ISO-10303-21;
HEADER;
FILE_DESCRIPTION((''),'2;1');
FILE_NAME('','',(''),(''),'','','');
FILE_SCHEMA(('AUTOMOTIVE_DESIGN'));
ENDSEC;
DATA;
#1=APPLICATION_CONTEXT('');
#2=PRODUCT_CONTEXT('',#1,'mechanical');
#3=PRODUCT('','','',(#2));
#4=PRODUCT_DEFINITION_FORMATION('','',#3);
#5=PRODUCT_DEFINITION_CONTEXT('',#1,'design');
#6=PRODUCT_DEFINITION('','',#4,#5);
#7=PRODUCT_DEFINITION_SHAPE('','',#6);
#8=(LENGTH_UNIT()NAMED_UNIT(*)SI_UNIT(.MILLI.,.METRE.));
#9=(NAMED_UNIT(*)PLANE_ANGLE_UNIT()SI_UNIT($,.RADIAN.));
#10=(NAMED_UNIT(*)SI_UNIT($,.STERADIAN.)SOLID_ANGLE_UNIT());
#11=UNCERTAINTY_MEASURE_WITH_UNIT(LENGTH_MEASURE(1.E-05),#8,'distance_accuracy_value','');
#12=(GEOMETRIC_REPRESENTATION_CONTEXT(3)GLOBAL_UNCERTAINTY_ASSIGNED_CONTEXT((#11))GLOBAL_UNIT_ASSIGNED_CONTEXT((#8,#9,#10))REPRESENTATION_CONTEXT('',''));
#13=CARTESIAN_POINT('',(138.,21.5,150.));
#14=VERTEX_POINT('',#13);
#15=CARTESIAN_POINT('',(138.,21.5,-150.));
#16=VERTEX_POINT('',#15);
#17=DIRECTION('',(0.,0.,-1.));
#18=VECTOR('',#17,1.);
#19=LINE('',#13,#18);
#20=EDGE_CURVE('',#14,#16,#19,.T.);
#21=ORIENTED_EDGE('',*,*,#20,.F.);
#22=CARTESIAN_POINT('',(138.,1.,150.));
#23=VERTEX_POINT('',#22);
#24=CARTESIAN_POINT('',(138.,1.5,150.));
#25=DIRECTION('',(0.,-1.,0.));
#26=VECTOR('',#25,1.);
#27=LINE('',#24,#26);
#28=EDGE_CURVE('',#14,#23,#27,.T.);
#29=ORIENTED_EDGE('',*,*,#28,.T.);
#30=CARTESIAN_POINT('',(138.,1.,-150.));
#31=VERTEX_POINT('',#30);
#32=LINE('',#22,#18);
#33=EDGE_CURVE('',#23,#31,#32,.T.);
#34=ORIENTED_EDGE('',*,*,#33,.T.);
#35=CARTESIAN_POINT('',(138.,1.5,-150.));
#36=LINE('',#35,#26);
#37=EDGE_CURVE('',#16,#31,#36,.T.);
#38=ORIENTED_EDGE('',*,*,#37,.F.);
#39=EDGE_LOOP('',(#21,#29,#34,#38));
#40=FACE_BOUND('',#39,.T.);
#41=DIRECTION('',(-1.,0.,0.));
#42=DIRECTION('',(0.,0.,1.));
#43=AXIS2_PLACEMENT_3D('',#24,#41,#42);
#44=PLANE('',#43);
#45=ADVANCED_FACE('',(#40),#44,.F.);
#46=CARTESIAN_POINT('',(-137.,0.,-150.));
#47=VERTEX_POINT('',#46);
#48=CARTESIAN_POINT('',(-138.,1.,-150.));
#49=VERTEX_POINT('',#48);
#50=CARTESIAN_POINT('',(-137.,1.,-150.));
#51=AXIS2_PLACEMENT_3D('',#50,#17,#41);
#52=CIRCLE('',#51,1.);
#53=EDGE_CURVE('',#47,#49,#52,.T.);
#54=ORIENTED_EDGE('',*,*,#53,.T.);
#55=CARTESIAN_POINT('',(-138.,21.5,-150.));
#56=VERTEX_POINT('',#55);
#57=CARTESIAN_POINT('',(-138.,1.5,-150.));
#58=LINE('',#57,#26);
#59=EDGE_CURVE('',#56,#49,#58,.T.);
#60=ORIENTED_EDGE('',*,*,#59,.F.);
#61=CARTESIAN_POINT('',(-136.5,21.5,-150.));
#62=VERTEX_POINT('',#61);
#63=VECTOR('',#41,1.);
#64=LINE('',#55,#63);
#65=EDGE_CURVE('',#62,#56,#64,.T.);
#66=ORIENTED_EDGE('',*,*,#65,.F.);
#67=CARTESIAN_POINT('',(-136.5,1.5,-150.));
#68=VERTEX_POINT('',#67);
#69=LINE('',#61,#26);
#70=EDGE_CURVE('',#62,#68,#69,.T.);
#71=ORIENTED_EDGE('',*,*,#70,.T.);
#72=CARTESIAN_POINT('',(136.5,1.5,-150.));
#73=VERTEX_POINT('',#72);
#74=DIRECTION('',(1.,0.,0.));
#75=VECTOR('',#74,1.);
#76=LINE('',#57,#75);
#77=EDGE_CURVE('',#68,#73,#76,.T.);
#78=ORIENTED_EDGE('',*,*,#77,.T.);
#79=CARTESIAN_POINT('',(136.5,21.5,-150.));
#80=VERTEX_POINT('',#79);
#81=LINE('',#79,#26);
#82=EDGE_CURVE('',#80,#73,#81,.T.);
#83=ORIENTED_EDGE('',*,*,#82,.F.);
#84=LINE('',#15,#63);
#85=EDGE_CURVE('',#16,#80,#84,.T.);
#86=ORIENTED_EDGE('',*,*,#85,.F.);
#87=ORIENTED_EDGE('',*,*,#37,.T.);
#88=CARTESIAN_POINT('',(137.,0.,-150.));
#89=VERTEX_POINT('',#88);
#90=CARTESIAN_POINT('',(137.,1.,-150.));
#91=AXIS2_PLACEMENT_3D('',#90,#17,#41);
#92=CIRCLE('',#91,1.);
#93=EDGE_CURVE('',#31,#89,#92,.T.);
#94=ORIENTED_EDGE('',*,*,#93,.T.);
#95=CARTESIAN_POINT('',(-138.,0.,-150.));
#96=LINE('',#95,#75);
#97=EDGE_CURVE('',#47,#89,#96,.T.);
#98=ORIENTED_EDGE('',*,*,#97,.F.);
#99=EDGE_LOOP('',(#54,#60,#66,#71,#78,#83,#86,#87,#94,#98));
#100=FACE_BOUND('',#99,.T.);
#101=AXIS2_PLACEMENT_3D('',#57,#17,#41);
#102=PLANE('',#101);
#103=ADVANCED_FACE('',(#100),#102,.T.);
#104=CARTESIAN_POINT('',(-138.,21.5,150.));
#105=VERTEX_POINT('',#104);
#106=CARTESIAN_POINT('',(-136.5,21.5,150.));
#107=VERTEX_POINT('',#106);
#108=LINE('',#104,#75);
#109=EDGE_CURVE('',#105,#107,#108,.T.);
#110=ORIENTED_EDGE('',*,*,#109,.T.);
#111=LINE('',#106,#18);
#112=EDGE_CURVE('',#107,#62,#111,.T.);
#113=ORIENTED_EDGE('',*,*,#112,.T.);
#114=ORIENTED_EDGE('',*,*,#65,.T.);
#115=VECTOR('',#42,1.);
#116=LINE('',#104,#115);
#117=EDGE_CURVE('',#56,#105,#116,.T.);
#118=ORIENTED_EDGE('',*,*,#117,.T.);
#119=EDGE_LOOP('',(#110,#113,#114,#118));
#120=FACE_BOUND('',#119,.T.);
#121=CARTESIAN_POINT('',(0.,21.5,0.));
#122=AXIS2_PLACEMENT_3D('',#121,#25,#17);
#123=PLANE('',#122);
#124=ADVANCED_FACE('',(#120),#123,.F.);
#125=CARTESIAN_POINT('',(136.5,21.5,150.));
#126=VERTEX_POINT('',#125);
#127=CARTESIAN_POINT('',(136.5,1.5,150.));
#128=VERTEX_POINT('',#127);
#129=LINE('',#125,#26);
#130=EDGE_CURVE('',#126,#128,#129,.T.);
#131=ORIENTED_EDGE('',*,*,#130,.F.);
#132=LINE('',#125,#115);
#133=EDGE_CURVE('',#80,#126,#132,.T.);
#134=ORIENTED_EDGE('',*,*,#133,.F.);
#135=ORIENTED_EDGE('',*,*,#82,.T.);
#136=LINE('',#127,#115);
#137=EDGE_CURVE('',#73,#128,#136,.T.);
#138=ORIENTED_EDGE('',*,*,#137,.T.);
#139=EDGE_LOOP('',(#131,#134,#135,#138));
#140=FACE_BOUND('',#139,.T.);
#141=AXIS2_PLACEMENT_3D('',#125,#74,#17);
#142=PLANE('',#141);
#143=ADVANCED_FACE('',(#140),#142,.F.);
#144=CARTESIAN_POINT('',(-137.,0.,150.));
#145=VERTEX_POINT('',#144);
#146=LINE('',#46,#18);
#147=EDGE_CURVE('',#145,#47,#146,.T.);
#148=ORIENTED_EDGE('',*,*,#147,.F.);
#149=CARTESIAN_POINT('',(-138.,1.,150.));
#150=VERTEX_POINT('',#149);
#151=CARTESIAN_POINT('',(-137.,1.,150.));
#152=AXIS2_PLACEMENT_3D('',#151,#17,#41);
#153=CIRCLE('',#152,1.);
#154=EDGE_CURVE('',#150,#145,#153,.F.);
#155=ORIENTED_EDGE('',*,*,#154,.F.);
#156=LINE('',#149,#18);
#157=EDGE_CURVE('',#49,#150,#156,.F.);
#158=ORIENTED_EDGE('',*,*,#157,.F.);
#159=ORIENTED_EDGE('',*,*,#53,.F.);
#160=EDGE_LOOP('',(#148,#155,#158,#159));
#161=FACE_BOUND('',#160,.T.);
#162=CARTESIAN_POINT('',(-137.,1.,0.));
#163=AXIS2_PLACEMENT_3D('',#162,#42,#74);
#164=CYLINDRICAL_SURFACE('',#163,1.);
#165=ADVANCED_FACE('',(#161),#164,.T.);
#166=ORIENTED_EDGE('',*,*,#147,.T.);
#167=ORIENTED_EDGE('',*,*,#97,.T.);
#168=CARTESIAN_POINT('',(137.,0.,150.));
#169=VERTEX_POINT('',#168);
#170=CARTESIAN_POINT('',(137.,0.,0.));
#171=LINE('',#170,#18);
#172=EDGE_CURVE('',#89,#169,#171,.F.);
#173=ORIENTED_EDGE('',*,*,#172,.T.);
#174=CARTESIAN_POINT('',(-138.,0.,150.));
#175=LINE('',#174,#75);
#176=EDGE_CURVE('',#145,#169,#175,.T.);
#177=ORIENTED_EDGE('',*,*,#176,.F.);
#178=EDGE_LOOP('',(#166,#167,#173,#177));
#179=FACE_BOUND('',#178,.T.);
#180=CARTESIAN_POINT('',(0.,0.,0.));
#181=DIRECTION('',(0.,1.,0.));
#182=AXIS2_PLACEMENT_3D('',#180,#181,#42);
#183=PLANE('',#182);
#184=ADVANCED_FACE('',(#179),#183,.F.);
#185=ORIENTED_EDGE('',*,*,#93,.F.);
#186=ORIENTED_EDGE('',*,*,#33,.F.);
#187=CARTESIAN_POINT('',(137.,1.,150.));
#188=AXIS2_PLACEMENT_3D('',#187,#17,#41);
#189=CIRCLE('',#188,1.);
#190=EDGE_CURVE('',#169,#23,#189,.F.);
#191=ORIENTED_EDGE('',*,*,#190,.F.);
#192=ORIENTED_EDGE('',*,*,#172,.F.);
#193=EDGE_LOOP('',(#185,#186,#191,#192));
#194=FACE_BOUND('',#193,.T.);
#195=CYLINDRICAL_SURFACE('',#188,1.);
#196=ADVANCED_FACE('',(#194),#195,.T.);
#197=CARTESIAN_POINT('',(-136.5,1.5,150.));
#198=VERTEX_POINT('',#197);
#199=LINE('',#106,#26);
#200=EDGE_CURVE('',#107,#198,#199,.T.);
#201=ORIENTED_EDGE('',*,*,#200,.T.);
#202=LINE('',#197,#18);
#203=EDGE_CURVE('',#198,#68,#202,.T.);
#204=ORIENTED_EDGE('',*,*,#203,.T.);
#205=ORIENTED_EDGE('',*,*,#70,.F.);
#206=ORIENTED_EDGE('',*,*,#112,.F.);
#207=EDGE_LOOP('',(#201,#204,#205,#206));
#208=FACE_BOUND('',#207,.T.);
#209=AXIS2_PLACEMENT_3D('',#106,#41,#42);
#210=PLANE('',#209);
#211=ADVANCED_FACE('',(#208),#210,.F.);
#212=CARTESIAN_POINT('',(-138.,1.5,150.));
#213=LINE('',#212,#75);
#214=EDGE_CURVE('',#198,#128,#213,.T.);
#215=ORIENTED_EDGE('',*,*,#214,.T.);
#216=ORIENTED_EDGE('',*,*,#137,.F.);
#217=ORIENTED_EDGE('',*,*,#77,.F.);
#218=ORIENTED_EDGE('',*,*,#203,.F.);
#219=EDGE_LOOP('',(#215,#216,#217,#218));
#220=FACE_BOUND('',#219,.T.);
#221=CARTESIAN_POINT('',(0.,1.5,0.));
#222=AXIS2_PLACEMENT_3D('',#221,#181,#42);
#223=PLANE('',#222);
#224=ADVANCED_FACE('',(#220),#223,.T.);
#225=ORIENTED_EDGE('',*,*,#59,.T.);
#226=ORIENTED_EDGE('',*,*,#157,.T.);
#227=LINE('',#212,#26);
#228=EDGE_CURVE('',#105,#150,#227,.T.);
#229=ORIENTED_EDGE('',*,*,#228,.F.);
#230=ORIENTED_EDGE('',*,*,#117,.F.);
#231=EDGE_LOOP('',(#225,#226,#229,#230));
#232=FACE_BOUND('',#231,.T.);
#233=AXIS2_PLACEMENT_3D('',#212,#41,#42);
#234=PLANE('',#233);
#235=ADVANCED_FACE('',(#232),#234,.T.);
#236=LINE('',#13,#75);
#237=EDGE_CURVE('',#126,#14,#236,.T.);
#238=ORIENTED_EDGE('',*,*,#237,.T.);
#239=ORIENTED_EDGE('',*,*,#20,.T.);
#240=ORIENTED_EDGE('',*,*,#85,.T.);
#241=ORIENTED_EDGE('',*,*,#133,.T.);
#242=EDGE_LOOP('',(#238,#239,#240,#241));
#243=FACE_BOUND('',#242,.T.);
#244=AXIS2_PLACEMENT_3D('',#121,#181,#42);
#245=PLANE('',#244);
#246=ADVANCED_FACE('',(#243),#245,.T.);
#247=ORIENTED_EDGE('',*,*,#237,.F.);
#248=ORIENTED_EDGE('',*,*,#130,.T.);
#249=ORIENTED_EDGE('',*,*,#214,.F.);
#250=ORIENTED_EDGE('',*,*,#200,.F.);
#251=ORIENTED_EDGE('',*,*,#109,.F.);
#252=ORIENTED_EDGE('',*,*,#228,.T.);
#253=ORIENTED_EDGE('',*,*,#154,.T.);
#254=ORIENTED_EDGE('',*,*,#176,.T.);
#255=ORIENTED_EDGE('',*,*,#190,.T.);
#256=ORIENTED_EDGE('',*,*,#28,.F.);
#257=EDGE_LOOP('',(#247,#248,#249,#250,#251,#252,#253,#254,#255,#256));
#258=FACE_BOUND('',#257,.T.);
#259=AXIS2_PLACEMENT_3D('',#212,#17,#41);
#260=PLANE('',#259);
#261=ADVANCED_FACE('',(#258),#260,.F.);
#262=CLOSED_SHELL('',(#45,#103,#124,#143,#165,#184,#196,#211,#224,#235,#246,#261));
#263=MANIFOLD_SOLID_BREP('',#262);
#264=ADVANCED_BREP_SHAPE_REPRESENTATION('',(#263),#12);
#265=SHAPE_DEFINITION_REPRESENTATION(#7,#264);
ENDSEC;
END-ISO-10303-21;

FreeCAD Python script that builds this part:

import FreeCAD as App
import Part
import Sketcher
from FreeCAD import Vector


def edges_at(feature, points):
    """Names of the edges that pass closest to the given points."""
    edges = feature.Shape.Edges
    near = lambda p: min(range(len(edges)), key=lambda i: edges[i].distToShape(Part.Vertex(*p))[0])
    return sorted({f"Edge{near(p) + 1}" for p in points})


def add_polygon(sketch, points):
    """Adds a closed chain of lines whose ends are joined by coincident constraints."""
    first, n = sketch.GeometryCount, len(points)
    for a, b in zip(points, points[1:] + points[:1]):
        sketch.addGeometry(Part.LineSegment(App.Vector(*a, 0), App.Vector(*b, 0)), False)
    for i in range(n):
        sketch.addConstraint(Sketcher.Constraint("Coincident", first + i, 2, first + (i + 1) % n, 1))

doc = App.newDocument("Part")
body = doc.addObject("PartDesign::Body", "Body")

sketch1 = doc.addObject("Sketcher::SketchObject", "Sketch")
body.addObject(sketch1)
sketch1.AttachmentSupport = (doc.XZ_Plane, [""])
sketch1.MapMode = "FlatFace"
add_polygon(sketch1, [(-138, -150), (-138, 150), (138, 150), (138, -150)])
sketch1.addConstraint(Sketcher.Constraint("Vertical", 0))
sketch1.addConstraint(Sketcher.Constraint("Horizontal", 1))
sketch1.addConstraint(Sketcher.Constraint("Vertical", 2))
sketch1.addConstraint(Sketcher.Constraint("Horizontal", 3))
sketch1.addConstraint(Sketcher.Constraint("Symmetric", 0, 2, 2, 2, -1, 1))
sketch1.addConstraint(Sketcher.Constraint("DistanceX", 1, 1, 1, 2, 276.0))
sketch1.addConstraint(Sketcher.Constraint("DistanceY", 0, 1, 0, 2, 300.0))
pad1 = doc.addObject("PartDesign::Pad", "Pad")
body.addObject(pad1)
pad1.Profile = sketch1
pad1.Length = 1.5
pad1.Reversed = True

sketch2 = doc.addObject("Sketcher::SketchObject", "Sketch001")
body.addObject(sketch2)
sketch2.AttachmentSupport = (doc.XZ_Plane, [""])
sketch2.MapMode = "FlatFace"
sketch2.AttachmentOffset = App.Placement(Vector(0, 0, -1.5), App.Rotation())
add_polygon(sketch2, [(-138, -150), (-138, 150), (-136.5, 150), (-136.5, -150)])
add_polygon(sketch2, [(136.5, -150), (136.5, 150), (138, 150), (138, -150)])
sketch2.addConstraint(Sketcher.Constraint("Vertical", 0))
sketch2.addConstraint(Sketcher.Constraint("Horizontal", 1))
sketch2.addConstraint(Sketcher.Constraint("Vertical", 2))
sketch2.addConstraint(Sketcher.Constraint("Horizontal", 3))
sketch2.addConstraint(Sketcher.Constraint("Vertical", 4))
sketch2.addConstraint(Sketcher.Constraint("Horizontal", 5))
sketch2.addConstraint(Sketcher.Constraint("Vertical", 6))
sketch2.addConstraint(Sketcher.Constraint("Horizontal", 7))
sketch2.addConstraint(Sketcher.Constraint("Symmetric", 2, 2, 4, 2, -1, 1))
sketch2.addConstraint(Sketcher.Constraint("Symmetric", 0, 2, 6, 2, -1, 1))
sketch2.addConstraint(Sketcher.Constraint("Horizontal", 1, 2, 4, 2))
sketch2.addConstraint(Sketcher.Constraint("DistanceY", 0, 1, 0, 2, 300.0))
sketch2.addConstraint(Sketcher.Constraint("DistanceX", 1, 1, 1, 2, 1.5))
sketch2.addConstraint(Sketcher.Constraint("DistanceX", 0, 2, -1, 1, 138.0))
pad2 = doc.addObject("PartDesign::Pad", "Pad001")
body.addObject(pad2)
pad2.Profile = sketch2
pad2.Length = 20
pad2.Reversed = True
doc.recompute()

fillet = doc.addObject("PartDesign::Fillet", "Fillet")
body.addObject(fillet)
fillet.Base = (pad2, edges_at(pad2, [(-138, 0, 0), (138, 0, 0)]))
fillet.Radius = 1

doc.recompute()
